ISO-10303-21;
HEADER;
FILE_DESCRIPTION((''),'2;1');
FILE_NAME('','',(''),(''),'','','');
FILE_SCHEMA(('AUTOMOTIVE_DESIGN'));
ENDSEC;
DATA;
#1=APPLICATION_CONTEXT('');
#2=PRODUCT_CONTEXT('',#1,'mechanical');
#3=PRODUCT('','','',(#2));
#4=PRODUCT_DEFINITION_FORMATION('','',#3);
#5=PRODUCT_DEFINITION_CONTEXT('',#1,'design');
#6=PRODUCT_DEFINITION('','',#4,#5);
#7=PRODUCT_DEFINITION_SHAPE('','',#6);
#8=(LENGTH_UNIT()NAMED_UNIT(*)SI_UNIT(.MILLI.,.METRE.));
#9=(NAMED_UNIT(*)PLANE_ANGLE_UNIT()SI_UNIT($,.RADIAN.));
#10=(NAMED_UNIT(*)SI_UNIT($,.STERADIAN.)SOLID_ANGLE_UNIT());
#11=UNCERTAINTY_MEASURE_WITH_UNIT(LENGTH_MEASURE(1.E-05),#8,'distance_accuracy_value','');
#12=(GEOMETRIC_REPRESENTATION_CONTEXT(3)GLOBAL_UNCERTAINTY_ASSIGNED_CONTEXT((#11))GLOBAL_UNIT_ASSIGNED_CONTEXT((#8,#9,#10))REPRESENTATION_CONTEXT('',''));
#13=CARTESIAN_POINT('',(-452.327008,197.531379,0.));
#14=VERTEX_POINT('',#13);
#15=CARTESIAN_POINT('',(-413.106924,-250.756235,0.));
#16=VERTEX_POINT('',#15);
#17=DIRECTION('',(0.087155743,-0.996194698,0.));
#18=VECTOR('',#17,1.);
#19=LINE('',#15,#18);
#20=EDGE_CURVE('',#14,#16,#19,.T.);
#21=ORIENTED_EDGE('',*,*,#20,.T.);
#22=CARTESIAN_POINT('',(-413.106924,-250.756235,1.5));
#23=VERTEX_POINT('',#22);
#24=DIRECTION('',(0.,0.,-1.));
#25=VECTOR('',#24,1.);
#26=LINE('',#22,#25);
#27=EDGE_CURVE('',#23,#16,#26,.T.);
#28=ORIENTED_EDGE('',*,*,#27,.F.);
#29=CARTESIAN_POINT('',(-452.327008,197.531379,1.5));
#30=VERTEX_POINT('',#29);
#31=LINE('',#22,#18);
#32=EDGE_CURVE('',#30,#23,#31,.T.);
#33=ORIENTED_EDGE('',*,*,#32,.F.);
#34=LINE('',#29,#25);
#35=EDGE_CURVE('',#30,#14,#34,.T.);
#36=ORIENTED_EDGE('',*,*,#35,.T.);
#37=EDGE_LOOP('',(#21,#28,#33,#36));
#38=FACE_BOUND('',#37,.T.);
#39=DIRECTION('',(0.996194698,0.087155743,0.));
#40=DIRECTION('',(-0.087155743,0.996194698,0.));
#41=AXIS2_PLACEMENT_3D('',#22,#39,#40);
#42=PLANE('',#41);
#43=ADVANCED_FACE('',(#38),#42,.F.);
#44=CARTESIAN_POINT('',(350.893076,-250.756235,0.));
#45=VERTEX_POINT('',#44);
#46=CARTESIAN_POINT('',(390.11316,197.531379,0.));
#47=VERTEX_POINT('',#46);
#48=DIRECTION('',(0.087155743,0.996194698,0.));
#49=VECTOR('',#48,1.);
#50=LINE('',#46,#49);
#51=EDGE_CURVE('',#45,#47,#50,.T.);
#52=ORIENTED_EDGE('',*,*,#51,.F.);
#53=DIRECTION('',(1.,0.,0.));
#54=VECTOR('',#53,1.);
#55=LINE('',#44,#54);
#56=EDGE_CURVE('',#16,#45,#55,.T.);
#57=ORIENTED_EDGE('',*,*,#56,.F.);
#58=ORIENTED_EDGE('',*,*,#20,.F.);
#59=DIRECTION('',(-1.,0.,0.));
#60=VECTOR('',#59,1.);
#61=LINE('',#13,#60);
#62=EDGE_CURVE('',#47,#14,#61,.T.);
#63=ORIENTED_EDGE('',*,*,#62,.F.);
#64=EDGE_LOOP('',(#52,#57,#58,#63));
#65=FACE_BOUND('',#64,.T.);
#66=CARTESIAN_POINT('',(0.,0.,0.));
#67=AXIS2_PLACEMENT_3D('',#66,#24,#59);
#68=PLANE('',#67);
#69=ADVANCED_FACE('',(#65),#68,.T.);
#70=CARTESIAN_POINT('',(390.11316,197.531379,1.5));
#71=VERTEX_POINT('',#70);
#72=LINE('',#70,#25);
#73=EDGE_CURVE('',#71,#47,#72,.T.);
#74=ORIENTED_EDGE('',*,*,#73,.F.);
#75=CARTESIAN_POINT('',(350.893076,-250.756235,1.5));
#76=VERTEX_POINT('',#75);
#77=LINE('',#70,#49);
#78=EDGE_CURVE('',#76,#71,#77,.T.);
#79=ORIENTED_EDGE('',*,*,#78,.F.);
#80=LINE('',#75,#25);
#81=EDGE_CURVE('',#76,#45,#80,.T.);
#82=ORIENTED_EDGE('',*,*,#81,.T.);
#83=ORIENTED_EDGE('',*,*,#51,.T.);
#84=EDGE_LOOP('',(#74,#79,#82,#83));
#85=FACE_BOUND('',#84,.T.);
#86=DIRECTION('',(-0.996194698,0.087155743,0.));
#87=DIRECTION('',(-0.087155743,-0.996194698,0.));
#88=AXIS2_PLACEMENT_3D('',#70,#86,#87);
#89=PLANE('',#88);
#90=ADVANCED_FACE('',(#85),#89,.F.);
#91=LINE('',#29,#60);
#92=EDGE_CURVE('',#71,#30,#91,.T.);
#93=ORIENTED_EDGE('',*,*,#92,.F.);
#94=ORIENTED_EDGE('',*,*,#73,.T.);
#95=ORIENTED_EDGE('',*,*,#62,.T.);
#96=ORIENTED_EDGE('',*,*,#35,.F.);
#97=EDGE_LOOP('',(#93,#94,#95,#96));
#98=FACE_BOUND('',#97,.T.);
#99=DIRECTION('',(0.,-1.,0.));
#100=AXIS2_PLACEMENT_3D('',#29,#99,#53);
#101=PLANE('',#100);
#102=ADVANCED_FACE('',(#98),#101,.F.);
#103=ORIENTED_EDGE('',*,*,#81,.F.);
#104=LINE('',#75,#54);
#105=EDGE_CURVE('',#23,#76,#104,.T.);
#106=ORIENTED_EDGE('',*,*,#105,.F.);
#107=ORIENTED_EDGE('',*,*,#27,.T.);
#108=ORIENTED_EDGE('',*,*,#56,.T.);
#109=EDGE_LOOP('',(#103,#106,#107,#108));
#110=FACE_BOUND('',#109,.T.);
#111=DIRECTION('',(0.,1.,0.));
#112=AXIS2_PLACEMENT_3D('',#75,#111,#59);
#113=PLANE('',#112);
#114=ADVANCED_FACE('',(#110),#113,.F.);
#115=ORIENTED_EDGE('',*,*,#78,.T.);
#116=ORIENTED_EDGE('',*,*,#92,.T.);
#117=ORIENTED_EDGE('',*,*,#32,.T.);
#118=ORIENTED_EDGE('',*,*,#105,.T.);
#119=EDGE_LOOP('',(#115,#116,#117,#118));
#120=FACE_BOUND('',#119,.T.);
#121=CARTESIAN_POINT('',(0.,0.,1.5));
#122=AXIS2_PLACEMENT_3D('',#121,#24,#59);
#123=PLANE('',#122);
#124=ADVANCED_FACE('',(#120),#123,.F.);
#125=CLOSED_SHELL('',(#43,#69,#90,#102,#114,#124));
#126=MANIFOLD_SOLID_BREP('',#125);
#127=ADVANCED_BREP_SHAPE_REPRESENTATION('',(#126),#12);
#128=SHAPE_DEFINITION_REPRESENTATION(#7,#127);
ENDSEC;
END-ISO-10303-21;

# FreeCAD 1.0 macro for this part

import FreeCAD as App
import Part
import Sketcher
Q = App.Units.Quantity

doc = App.newDocument("Part")
params = doc.addObject("Spreadsheet::Sheet", "Params")
for row, (alias, value) in enumerate([
    ("sketch1_width", "764 mm"),
    ("sketch1_length", "450 mm"),
    ("pad1_length", "1.5 mm"),
], start=1):
    params.set(f"A{row}", alias)
    params.set(f"B{row}", "=" + value)
    params.setAlias(f"B{row}", alias)

body = doc.addObject("PartDesign::Body", "Body")

sketch1 = body.newObject("Sketcher::SketchObject", "Sketch")
sketch1.AttachmentSupport = (doc.getObject("XY_Plane"), [""])
sketch1.MapMode = "FlatFace"
sketch1.addGeometry([
    Part.LineSegment(App.Vector(390, 198, 0), App.Vector(-452, 198, 0)),
    Part.LineSegment(App.Vector(-452, 198, 0), App.Vector(-413, -251, 0)),
    Part.LineSegment(App.Vector(-413, -251, 0), App.Vector(351, -251, 0)),
    Part.LineSegment(App.Vector(351, -251, 0), App.Vector(390, 198, 0)),
], False)
sketch1.addConstraint([
    Sketcher.Constraint("Coincident", 0, 2, 1, 1),
    Sketcher.Constraint("Coincident", 1, 2, 2, 1),
    Sketcher.Constraint("Coincident", 2, 2, 3, 1),
    Sketcher.Constraint("Coincident", 3, 2, 0, 1),
    Sketcher.Constraint("Horizontal", 0),
    Sketcher.Constraint("Horizontal", 2),
    Sketcher.Constraint("Equal", 1, 3),
    Sketcher.Constraint("DistanceX", 2, 1, 2, 2, 764.0),
    Sketcher.Constraint("Angle", 1, Q("-85 deg")),
    Sketcher.Constraint("Distance", 1, 450.0),
    Sketcher.Constraint("DistanceX", 0, 2, -1, 1, 452.327008),
    Sketcher.Constraint("DistanceY", -1, 1, 0, 2, 197.531379),
])
sketch1.setExpression("Constraints[7]", "Params.sketch1_width")
sketch1.setExpression("Constraints[9]", "Params.sketch1_length")
pad1 = body.newObject("PartDesign::Pad", "Pad")
pad1.Profile = sketch1
pad1.setExpression("Length", "Params.pad1_length")

doc.recompute()
